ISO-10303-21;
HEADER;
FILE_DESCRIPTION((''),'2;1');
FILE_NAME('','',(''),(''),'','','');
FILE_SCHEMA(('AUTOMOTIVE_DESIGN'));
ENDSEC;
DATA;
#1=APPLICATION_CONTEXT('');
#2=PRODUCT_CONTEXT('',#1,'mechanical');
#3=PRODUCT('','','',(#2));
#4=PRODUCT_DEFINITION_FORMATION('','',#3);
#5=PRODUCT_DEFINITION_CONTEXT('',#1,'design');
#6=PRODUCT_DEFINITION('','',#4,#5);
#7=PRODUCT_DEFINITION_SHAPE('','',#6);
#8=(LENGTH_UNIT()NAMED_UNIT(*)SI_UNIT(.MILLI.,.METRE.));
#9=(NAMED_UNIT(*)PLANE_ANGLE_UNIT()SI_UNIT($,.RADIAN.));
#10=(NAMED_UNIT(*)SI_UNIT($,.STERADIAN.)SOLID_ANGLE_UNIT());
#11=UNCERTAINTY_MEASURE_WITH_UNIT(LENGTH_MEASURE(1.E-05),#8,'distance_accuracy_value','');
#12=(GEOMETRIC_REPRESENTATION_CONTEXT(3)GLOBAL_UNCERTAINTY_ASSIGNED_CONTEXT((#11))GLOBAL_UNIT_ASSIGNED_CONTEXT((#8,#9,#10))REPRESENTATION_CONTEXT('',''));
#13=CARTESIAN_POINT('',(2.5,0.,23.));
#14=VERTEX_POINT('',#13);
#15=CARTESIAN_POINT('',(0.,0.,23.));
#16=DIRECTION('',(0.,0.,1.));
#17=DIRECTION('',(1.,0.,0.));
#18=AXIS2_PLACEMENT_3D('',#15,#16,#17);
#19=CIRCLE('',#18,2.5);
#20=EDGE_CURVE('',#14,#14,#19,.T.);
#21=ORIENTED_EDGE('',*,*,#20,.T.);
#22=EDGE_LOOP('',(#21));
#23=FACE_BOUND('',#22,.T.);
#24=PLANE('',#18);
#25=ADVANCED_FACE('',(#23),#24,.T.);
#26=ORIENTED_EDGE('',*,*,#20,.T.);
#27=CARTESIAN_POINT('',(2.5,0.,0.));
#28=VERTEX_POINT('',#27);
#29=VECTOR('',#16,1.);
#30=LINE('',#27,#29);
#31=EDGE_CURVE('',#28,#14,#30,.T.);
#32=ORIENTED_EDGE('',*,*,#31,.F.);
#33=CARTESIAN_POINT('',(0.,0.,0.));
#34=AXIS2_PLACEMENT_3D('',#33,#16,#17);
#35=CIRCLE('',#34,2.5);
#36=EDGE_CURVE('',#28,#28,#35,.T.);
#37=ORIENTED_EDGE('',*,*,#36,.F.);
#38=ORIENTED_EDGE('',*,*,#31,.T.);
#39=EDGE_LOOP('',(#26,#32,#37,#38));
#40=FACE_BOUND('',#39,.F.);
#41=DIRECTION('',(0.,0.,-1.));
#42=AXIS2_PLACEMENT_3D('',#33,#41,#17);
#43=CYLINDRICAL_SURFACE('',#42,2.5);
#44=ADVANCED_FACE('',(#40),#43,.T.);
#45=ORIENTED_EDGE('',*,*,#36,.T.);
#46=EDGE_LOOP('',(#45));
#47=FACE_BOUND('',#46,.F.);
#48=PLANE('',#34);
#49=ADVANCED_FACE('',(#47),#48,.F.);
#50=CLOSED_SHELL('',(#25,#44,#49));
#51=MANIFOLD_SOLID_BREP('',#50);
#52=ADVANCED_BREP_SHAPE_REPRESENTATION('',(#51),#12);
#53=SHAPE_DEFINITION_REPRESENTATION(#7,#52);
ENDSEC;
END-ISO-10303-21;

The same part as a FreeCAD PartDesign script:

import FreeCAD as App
import Part
import Sketcher

V = App.Vector
Q = App.Units.Quantity

doc = App.newDocument("Part")
body = doc.addObject("PartDesign::Body", "Body")

# Sketch on XY plane
sketch1 = body.newObject("Sketcher::SketchObject", "Sketch")
sketch1.AttachmentSupport = (doc.getObject("XY_Plane"), [""])
sketch1.MapMode = "FlatFace"
sketch1.addGeometry(Part.Circle(V(0, 0, 0), V(0, 0, 1), 2.5), False)
sketch1.addConstraint([
    Sketcher.Constraint("Coincident", 0, 3, -1, 1),
    Sketcher.Constraint("Diameter", 0, Q("5 mm")),
])
pad1 = body.newObject("PartDesign::Pad", "Pad")
pad1.Profile = sketch1
pad1.Length = 23

doc.recompute()
